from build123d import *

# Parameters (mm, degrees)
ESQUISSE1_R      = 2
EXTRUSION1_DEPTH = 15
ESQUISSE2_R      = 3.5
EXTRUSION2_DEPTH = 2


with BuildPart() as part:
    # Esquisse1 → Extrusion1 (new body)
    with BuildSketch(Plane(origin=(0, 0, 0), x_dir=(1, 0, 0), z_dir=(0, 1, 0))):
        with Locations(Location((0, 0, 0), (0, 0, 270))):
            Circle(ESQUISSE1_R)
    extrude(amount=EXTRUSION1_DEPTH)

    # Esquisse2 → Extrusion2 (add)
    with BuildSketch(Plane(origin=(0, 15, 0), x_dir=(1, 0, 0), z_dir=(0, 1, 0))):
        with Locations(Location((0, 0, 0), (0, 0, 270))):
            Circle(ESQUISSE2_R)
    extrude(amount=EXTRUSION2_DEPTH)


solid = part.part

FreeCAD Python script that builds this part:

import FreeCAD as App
import Part
import Sketcher

doc = App.newDocument("Part")
body = doc.addObject("PartDesign::Body", "Body")

# Sketch on XZ plane
sketch1 = doc.addObject("Sketcher::SketchObject", "Sketch")
body.addObject(sketch1)
sketch1.AttachmentSupport = (doc.XZ_Plane, [""])
sketch1.MapMode = "FlatFace"
sketch1.addGeometry(Part.Circle(App.Vector(0, 0, 0), App.Vector(0, 0, 1), 2), False)
sketch1.addConstraint([
    Sketcher.Constraint("Coincident", 0, 3, -1, 1),
    Sketcher.Constraint("Diameter", 0, 4.0),
])
pad1 = doc.addObject("PartDesign::Pad", "Pad")
body.addObject(pad1)
pad1.Profile = sketch1
pad1.Length = 15
pad1.Reversed = True

# Sketch on XZ plane
sketch2 = doc.addObject("Sketcher::SketchObject", "Sketch001")
body.addObject(sketch2)
sketch2.AttachmentSupport = (doc.XZ_Plane, [""])
sketch2.MapMode = "FlatFace"
sketch2.AttachmentOffset = App.Placement(App.Vector(0, 0, -15), App.Rotation())
sketch2.addGeometry(Part.Circle(App.Vector(0, 0, 0), App.Vector(0, 0, 1), 3.5), False)
sketch2.addConstraint([
    Sketcher.Constraint("Coincident", 0, 3, -1, 1),
    Sketcher.Constraint("Diameter", 0, 7.0),
])
pad2 = doc.addObject("PartDesign::Pad", "Pad001")
body.addObject(pad2)
pad2.Profile = sketch2
pad2.Length = 2
pad2.Reversed = True

doc.recompute()
